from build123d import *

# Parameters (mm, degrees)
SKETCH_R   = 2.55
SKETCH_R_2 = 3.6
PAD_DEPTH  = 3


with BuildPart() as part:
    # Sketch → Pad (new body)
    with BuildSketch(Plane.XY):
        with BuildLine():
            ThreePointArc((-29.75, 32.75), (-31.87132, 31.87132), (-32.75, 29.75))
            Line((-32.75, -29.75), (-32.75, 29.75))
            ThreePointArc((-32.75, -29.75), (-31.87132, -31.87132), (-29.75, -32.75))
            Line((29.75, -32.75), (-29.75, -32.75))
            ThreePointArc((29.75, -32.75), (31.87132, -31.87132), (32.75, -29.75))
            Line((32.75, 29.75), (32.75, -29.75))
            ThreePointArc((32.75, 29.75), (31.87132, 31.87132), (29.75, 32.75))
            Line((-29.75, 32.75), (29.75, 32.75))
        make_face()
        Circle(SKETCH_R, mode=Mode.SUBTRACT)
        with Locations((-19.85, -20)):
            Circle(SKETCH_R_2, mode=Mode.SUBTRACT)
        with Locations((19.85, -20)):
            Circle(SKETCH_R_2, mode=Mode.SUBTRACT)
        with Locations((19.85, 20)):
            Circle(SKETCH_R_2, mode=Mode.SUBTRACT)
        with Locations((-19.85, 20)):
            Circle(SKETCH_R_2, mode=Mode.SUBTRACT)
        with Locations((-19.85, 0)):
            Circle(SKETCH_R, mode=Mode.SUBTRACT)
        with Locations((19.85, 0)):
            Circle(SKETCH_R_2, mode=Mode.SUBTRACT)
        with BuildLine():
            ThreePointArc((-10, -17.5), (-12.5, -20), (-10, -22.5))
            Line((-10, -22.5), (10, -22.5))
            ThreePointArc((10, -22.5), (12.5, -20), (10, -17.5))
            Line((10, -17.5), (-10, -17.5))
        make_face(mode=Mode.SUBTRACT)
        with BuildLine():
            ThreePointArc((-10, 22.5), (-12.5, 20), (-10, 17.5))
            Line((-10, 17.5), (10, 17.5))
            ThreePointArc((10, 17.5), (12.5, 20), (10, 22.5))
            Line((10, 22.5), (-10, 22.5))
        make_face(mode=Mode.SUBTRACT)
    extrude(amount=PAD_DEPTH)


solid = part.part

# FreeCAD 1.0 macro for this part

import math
import FreeCAD as App
import Part
import Sketcher

V = App.Vector

doc = App.newDocument("Part")
body = doc.addObject("PartDesign::Body", "Body")

# Sketch on XY plane
sketch1 = body.newObject("Sketcher::SketchObject", "Sketch")
sketch1.AttachmentSupport = (doc.getObject("XY_Plane"), [""])
sketch1.MapMode = "FlatFace"
sketch1.addGeometry([
    Part.ArcOfCircle(Part.Circle(V(-29.749999, 29.749999, 0), V(0, 0, 1), 3.000001), math.radians(90.000022), math.radians(179.999978)),  # 0
    Part.LineSegment(V(-32.75, 29.75, 0), V(-32.75, -29.75, 0)),  # 1
    Part.ArcOfCircle(Part.Circle(V(-29.749999, -29.749999, 0), V(0, 0, 1), 3.000001), math.radians(-179.999978), math.radians(-90.000022)),  # 2
    Part.LineSegment(V(-29.75, -32.75, 0), V(29.75, -32.75, 0)),  # 3
    Part.ArcOfCircle(Part.Circle(V(29.749999, -29.749999, 0), V(0, 0, 1), 3.000001), math.radians(-89.999978), math.radians(-0.000022)),  # 4
    Part.LineSegment(V(32.75, -29.75, 0), V(32.75, 29.75, 0)),  # 5
    Part.ArcOfCircle(Part.Circle(V(29.749999, 29.749999, 0), V(0, 0, 1), 3.000001), math.radians(0.000022), math.radians(89.999978)),  # 6
    Part.LineSegment(V(29.75, 32.75, 0), V(-29.75, 32.75, 0)),  # 7
    Part.Circle(V(-19.85, -20, 0), V(0, 0, 1), 3.6),  # 8
    Part.ArcOfCircle(Part.Circle(V(-10, -20, 0), V(0, 0, 1), 2.5), math.radians(90), math.radians(270)),  # 9
    Part.LineSegment(V(-10, -17.5, 0), V(10, -17.5, 0)),  # 10
    Part.ArcOfCircle(Part.Circle(V(10, -20, 0), V(0, 0, 1), 2.5), math.radians(-90), math.radians(90)),  # 11
    Part.LineSegment(V(10, -22.5, 0), V(-10, -22.5, 0)),  # 12
    Part.Circle(V(19.85, -20, 0), V(0, 0, 1), 3.6),  # 13
    Part.Circle(V(-19.85, 0, 0), V(0, 0, 1), 2.55),  # 14
    Part.Circle(V(0, 0, 0), V(0, 0, 1), 2.55),  # 15
    Part.Circle(V(-19.85, 20, 0), V(0, 0, 1), 3.6),  # 16
    Part.ArcOfCircle(Part.Circle(V(-10, 20, 0), V(0, 0, 1), 2.5), math.radians(90), math.radians(270)),  # 17
    Part.LineSegment(V(-10, 22.5, 0), V(10, 22.5, 0)),  # 18
    Part.ArcOfCircle(Part.Circle(V(10, 20, 0), V(0, 0, 1), 2.5), math.radians(-90), math.radians(90)),  # 19
    Part.LineSegment(V(10, 17.5, 0), V(-10, 17.5, 0)),  # 20
    Part.Circle(V(19.85, 0, 0), V(0, 0, 1), 3.6),  # 21
    Part.Circle(V(19.85, 20, 0), V(0, 0, 1), 3.6),  # 22
], False)
sketch1.addConstraint([
    Sketcher.Constraint("Tangent", 0, 2, 1, 1),
    Sketcher.Constraint("Tangent", 1, 2, 2, 1),
    Sketcher.Constraint("Tangent", 2, 2, 3, 1),
    Sketcher.Constraint("Tangent", 3, 2, 4, 1),
    Sketcher.Constraint("Tangent", 4, 2, 5, 1),
    Sketcher.Constraint("Tangent", 5, 2, 6, 1),
    Sketcher.Constraint("Tangent", 6, 2, 7, 1),
    Sketcher.Constraint("Tangent", 7, 2, 0, 1),
    Sketcher.Constraint("Tangent", 9, 1, 10, 1),
    Sketcher.Constraint("Tangent", 10, 2, 11, 2),
    Sketcher.Constraint("Tangent", 11, 1, 12, 1),
    Sketcher.Constraint("Tangent", 12, 2, 9, 2),
    Sketcher.Constraint("Tangent", 17, 1, 18, 1),
    Sketcher.Constraint("Tangent", 18, 2, 19, 2),
    Sketcher.Constraint("Tangent", 19, 1, 20, 1),
    Sketcher.Constraint("Tangent", 20, 2, 17, 2),
    Sketcher.Constraint("Vertical", 1),
    Sketcher.Constraint("Horizontal", 3),
    Sketcher.Constraint("Vertical", 5),
    Sketcher.Constraint("Horizontal", 7),
    Sketcher.Constraint("Horizontal", 10),
    Sketcher.Constraint("Horizontal", 12),
    Sketcher.Constraint("Horizontal", 18),
    Sketcher.Constraint("Horizontal", 20),
    Sketcher.Constraint("Coincident", 15, 3, -1, 1),
    Sketcher.Constraint("Equal", 0, 2),
    Sketcher.Constraint("Equal", 2, 4),
    Sketcher.Constraint("Equal", 4, 6),
    Sketcher.Constraint("Equal", 8, 13),
    Sketcher.Constraint("Equal", 14, 15),
    Sketcher.Constraint("Equal", 13, 16),
    Sketcher.Constraint("Equal", 11, 17),
    Sketcher.Constraint("Equal", 16, 21),
    Sketcher.Constraint("Equal", 21, 22),
    Sketcher.Constraint("Symmetric", 0, 3, 4, 3, -1, 1),
    Sketcher.Constraint("Symmetric", 13, 3, 16, 3, -1, 1),
    Sketcher.Constraint("Symmetric", 11, 3, 17, 3, -1, 1),
    Sketcher.Constraint("Symmetric", 14, 3, 21, 3, -1, 1),
    Sketcher.Constraint("Symmetric", 8, 3, 22, 3, -1, 1),
    Sketcher.Constraint("Symmetric", 8, 3, 13, 3, -2),
    Sketcher.Constraint("PointOnObject", 14, 3, -1),
    Sketcher.Constraint("Horizontal", 8, 3, 9, 3),
    Sketcher.Constraint("Vertical", 8, 3, 14, 3),
    Sketcher.Constraint("Vertical", 9, 3, 17, 3),
    Sketcher.Constraint("Vertical", 11, 3, 19, 3),
    Sketcher.Constraint("Equal", 7, 1),
    Sketcher.Constraint("Radius", 0, 3.000001),
    Sketcher.Constraint("Diameter", 8, 7.2),
    Sketcher.Constraint("Diameter", 14, 5.1),
    Sketcher.Constraint("Radius", 9, 2.5),
    Sketcher.Constraint("DistanceX", 10, 1, 10, 2, 20.0),
    Sketcher.Constraint("DistanceX", 3, 1, 3, 2, 59.5),
    Sketcher.Constraint("DistanceY", 8, 3, -1, 1, 20.0),
    Sketcher.Constraint("DistanceX", 2, 3, 8, 3, 9.899999),
])
pad1 = body.newObject("PartDesign::Pad", "Pad")
pad1.Profile = sketch1
pad1.Length = 3

doc.recompute()
